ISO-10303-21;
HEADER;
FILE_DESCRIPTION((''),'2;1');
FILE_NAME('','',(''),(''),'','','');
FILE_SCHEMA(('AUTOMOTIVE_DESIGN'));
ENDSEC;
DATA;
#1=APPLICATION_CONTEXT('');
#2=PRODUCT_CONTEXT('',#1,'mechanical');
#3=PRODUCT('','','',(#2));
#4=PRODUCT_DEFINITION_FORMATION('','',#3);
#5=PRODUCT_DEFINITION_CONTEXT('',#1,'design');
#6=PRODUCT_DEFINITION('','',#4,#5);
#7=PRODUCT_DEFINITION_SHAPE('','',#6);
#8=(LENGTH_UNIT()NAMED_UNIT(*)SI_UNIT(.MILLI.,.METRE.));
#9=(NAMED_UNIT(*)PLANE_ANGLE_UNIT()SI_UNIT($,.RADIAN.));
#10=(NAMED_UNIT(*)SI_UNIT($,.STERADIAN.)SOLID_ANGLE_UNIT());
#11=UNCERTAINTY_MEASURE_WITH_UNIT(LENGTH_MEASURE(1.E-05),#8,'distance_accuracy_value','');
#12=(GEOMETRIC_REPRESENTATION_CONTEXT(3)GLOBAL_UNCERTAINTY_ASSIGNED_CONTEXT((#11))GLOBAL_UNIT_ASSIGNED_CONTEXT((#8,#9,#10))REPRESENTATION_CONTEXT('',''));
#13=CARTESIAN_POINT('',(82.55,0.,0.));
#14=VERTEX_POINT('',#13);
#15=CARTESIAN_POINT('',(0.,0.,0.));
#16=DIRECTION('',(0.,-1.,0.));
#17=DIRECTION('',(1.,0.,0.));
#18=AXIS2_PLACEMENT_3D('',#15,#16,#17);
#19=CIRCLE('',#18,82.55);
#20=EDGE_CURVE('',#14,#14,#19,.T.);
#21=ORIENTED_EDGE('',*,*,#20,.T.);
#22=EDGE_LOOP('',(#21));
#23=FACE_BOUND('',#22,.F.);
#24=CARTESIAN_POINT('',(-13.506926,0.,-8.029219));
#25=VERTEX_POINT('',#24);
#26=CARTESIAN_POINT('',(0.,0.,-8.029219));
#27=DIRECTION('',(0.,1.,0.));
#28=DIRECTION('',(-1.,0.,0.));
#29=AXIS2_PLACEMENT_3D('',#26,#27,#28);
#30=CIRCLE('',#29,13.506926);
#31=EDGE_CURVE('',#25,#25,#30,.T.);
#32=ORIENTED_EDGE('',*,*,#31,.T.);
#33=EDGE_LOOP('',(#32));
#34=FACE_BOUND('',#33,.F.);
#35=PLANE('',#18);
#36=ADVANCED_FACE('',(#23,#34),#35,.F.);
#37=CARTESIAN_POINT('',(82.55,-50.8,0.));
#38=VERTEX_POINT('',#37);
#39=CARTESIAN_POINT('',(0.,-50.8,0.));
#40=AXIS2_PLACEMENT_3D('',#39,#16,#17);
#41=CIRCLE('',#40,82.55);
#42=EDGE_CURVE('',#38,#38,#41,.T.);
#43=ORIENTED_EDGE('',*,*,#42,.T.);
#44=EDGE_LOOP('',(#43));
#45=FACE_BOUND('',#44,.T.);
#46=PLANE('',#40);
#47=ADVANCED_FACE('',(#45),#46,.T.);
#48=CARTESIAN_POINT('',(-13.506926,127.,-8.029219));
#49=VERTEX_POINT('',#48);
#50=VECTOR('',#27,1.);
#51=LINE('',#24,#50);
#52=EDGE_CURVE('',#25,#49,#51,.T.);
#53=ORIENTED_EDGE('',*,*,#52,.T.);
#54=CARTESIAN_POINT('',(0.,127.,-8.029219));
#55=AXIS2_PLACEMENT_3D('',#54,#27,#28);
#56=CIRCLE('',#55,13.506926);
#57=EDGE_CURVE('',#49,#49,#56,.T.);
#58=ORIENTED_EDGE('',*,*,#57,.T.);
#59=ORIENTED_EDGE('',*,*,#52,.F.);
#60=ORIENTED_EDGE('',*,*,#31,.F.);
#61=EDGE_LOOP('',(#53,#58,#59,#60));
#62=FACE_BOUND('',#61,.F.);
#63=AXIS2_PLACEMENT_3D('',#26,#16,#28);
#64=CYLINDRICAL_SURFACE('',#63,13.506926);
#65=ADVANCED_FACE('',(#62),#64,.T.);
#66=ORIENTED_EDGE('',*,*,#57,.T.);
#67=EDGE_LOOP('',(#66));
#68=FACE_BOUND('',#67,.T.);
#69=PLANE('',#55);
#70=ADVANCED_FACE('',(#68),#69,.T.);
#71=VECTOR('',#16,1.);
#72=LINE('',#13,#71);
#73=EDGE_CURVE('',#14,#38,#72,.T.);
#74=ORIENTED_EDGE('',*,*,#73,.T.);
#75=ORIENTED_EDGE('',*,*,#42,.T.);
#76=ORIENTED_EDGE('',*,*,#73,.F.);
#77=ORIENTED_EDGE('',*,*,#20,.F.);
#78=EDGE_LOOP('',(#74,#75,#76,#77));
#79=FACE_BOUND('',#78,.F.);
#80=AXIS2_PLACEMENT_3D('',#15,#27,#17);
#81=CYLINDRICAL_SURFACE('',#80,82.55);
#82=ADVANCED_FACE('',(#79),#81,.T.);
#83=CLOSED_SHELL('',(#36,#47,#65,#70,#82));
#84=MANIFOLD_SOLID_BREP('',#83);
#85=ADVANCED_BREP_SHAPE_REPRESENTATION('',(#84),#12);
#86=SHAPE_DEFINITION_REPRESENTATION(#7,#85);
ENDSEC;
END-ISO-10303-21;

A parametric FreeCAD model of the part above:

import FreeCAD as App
import Part
import Sketcher
Q = App.Units.Quantity

doc = App.newDocument("Part")
params = doc.addObject("Spreadsheet::Sheet", "Params")
for row, (alias, value) in enumerate([
    ("sketch1_diameter", "6.5 in"),
    ("pad1_length", "2 in"),
    ("pad2_length", "5 in"),
], start=1):
    params.set(f"A{row}", alias)
    params.set(f"B{row}", "=" + value)
    params.setAlias(f"B{row}", alias)

body = doc.addObject("PartDesign::Body", "Body")

sketch1 = body.newObject("Sketcher::SketchObject", "Sketch")
sketch1.AttachmentSupport = (doc.getObject("XZ_Plane"), [""])
sketch1.MapMode = "FlatFace"
sketch1.addGeometry(Part.Circle(App.Vector(0, 0, 0), App.Vector(0, 0, 1), 83), False)
sketch1.addConstraint([
    Sketcher.Constraint("Coincident", 0, 3, -1, 1),
    Sketcher.Constraint("Diameter", 0, Q("6.5 in")),
])
sketch1.setExpression("Constraints[1]", "Params.sketch1_diameter")
pad1 = body.newObject("PartDesign::Pad", "Pad")
pad1.Profile = sketch1
pad1.setExpression("Length", "Params.pad1_length")

sketch2 = body.newObject("Sketcher::SketchObject", "Sketch001")
sketch2.AttachmentSupport = (doc.getObject("XZ_Plane"), [""])
sketch2.MapMode = "FlatFace"
sketch2.addGeometry(Part.Circle(App.Vector(0, -8, 0), App.Vector(0, 0, 1), 14), False)
sketch2.addConstraint([
    Sketcher.Constraint("PointOnObject", 0, 3, -2),
    Sketcher.Constraint("Diameter", 0, Q("27.013852 mm")),
    Sketcher.Constraint("DistanceY", 0, 3, -1, 1, Q("8.029219 mm")),
])
pad2 = body.newObject("PartDesign::Pad", "Pad001")
pad2.Profile = sketch2
pad2.setExpression("Length", "Params.pad2_length")
pad2.Reversed = True

doc.recompute()
